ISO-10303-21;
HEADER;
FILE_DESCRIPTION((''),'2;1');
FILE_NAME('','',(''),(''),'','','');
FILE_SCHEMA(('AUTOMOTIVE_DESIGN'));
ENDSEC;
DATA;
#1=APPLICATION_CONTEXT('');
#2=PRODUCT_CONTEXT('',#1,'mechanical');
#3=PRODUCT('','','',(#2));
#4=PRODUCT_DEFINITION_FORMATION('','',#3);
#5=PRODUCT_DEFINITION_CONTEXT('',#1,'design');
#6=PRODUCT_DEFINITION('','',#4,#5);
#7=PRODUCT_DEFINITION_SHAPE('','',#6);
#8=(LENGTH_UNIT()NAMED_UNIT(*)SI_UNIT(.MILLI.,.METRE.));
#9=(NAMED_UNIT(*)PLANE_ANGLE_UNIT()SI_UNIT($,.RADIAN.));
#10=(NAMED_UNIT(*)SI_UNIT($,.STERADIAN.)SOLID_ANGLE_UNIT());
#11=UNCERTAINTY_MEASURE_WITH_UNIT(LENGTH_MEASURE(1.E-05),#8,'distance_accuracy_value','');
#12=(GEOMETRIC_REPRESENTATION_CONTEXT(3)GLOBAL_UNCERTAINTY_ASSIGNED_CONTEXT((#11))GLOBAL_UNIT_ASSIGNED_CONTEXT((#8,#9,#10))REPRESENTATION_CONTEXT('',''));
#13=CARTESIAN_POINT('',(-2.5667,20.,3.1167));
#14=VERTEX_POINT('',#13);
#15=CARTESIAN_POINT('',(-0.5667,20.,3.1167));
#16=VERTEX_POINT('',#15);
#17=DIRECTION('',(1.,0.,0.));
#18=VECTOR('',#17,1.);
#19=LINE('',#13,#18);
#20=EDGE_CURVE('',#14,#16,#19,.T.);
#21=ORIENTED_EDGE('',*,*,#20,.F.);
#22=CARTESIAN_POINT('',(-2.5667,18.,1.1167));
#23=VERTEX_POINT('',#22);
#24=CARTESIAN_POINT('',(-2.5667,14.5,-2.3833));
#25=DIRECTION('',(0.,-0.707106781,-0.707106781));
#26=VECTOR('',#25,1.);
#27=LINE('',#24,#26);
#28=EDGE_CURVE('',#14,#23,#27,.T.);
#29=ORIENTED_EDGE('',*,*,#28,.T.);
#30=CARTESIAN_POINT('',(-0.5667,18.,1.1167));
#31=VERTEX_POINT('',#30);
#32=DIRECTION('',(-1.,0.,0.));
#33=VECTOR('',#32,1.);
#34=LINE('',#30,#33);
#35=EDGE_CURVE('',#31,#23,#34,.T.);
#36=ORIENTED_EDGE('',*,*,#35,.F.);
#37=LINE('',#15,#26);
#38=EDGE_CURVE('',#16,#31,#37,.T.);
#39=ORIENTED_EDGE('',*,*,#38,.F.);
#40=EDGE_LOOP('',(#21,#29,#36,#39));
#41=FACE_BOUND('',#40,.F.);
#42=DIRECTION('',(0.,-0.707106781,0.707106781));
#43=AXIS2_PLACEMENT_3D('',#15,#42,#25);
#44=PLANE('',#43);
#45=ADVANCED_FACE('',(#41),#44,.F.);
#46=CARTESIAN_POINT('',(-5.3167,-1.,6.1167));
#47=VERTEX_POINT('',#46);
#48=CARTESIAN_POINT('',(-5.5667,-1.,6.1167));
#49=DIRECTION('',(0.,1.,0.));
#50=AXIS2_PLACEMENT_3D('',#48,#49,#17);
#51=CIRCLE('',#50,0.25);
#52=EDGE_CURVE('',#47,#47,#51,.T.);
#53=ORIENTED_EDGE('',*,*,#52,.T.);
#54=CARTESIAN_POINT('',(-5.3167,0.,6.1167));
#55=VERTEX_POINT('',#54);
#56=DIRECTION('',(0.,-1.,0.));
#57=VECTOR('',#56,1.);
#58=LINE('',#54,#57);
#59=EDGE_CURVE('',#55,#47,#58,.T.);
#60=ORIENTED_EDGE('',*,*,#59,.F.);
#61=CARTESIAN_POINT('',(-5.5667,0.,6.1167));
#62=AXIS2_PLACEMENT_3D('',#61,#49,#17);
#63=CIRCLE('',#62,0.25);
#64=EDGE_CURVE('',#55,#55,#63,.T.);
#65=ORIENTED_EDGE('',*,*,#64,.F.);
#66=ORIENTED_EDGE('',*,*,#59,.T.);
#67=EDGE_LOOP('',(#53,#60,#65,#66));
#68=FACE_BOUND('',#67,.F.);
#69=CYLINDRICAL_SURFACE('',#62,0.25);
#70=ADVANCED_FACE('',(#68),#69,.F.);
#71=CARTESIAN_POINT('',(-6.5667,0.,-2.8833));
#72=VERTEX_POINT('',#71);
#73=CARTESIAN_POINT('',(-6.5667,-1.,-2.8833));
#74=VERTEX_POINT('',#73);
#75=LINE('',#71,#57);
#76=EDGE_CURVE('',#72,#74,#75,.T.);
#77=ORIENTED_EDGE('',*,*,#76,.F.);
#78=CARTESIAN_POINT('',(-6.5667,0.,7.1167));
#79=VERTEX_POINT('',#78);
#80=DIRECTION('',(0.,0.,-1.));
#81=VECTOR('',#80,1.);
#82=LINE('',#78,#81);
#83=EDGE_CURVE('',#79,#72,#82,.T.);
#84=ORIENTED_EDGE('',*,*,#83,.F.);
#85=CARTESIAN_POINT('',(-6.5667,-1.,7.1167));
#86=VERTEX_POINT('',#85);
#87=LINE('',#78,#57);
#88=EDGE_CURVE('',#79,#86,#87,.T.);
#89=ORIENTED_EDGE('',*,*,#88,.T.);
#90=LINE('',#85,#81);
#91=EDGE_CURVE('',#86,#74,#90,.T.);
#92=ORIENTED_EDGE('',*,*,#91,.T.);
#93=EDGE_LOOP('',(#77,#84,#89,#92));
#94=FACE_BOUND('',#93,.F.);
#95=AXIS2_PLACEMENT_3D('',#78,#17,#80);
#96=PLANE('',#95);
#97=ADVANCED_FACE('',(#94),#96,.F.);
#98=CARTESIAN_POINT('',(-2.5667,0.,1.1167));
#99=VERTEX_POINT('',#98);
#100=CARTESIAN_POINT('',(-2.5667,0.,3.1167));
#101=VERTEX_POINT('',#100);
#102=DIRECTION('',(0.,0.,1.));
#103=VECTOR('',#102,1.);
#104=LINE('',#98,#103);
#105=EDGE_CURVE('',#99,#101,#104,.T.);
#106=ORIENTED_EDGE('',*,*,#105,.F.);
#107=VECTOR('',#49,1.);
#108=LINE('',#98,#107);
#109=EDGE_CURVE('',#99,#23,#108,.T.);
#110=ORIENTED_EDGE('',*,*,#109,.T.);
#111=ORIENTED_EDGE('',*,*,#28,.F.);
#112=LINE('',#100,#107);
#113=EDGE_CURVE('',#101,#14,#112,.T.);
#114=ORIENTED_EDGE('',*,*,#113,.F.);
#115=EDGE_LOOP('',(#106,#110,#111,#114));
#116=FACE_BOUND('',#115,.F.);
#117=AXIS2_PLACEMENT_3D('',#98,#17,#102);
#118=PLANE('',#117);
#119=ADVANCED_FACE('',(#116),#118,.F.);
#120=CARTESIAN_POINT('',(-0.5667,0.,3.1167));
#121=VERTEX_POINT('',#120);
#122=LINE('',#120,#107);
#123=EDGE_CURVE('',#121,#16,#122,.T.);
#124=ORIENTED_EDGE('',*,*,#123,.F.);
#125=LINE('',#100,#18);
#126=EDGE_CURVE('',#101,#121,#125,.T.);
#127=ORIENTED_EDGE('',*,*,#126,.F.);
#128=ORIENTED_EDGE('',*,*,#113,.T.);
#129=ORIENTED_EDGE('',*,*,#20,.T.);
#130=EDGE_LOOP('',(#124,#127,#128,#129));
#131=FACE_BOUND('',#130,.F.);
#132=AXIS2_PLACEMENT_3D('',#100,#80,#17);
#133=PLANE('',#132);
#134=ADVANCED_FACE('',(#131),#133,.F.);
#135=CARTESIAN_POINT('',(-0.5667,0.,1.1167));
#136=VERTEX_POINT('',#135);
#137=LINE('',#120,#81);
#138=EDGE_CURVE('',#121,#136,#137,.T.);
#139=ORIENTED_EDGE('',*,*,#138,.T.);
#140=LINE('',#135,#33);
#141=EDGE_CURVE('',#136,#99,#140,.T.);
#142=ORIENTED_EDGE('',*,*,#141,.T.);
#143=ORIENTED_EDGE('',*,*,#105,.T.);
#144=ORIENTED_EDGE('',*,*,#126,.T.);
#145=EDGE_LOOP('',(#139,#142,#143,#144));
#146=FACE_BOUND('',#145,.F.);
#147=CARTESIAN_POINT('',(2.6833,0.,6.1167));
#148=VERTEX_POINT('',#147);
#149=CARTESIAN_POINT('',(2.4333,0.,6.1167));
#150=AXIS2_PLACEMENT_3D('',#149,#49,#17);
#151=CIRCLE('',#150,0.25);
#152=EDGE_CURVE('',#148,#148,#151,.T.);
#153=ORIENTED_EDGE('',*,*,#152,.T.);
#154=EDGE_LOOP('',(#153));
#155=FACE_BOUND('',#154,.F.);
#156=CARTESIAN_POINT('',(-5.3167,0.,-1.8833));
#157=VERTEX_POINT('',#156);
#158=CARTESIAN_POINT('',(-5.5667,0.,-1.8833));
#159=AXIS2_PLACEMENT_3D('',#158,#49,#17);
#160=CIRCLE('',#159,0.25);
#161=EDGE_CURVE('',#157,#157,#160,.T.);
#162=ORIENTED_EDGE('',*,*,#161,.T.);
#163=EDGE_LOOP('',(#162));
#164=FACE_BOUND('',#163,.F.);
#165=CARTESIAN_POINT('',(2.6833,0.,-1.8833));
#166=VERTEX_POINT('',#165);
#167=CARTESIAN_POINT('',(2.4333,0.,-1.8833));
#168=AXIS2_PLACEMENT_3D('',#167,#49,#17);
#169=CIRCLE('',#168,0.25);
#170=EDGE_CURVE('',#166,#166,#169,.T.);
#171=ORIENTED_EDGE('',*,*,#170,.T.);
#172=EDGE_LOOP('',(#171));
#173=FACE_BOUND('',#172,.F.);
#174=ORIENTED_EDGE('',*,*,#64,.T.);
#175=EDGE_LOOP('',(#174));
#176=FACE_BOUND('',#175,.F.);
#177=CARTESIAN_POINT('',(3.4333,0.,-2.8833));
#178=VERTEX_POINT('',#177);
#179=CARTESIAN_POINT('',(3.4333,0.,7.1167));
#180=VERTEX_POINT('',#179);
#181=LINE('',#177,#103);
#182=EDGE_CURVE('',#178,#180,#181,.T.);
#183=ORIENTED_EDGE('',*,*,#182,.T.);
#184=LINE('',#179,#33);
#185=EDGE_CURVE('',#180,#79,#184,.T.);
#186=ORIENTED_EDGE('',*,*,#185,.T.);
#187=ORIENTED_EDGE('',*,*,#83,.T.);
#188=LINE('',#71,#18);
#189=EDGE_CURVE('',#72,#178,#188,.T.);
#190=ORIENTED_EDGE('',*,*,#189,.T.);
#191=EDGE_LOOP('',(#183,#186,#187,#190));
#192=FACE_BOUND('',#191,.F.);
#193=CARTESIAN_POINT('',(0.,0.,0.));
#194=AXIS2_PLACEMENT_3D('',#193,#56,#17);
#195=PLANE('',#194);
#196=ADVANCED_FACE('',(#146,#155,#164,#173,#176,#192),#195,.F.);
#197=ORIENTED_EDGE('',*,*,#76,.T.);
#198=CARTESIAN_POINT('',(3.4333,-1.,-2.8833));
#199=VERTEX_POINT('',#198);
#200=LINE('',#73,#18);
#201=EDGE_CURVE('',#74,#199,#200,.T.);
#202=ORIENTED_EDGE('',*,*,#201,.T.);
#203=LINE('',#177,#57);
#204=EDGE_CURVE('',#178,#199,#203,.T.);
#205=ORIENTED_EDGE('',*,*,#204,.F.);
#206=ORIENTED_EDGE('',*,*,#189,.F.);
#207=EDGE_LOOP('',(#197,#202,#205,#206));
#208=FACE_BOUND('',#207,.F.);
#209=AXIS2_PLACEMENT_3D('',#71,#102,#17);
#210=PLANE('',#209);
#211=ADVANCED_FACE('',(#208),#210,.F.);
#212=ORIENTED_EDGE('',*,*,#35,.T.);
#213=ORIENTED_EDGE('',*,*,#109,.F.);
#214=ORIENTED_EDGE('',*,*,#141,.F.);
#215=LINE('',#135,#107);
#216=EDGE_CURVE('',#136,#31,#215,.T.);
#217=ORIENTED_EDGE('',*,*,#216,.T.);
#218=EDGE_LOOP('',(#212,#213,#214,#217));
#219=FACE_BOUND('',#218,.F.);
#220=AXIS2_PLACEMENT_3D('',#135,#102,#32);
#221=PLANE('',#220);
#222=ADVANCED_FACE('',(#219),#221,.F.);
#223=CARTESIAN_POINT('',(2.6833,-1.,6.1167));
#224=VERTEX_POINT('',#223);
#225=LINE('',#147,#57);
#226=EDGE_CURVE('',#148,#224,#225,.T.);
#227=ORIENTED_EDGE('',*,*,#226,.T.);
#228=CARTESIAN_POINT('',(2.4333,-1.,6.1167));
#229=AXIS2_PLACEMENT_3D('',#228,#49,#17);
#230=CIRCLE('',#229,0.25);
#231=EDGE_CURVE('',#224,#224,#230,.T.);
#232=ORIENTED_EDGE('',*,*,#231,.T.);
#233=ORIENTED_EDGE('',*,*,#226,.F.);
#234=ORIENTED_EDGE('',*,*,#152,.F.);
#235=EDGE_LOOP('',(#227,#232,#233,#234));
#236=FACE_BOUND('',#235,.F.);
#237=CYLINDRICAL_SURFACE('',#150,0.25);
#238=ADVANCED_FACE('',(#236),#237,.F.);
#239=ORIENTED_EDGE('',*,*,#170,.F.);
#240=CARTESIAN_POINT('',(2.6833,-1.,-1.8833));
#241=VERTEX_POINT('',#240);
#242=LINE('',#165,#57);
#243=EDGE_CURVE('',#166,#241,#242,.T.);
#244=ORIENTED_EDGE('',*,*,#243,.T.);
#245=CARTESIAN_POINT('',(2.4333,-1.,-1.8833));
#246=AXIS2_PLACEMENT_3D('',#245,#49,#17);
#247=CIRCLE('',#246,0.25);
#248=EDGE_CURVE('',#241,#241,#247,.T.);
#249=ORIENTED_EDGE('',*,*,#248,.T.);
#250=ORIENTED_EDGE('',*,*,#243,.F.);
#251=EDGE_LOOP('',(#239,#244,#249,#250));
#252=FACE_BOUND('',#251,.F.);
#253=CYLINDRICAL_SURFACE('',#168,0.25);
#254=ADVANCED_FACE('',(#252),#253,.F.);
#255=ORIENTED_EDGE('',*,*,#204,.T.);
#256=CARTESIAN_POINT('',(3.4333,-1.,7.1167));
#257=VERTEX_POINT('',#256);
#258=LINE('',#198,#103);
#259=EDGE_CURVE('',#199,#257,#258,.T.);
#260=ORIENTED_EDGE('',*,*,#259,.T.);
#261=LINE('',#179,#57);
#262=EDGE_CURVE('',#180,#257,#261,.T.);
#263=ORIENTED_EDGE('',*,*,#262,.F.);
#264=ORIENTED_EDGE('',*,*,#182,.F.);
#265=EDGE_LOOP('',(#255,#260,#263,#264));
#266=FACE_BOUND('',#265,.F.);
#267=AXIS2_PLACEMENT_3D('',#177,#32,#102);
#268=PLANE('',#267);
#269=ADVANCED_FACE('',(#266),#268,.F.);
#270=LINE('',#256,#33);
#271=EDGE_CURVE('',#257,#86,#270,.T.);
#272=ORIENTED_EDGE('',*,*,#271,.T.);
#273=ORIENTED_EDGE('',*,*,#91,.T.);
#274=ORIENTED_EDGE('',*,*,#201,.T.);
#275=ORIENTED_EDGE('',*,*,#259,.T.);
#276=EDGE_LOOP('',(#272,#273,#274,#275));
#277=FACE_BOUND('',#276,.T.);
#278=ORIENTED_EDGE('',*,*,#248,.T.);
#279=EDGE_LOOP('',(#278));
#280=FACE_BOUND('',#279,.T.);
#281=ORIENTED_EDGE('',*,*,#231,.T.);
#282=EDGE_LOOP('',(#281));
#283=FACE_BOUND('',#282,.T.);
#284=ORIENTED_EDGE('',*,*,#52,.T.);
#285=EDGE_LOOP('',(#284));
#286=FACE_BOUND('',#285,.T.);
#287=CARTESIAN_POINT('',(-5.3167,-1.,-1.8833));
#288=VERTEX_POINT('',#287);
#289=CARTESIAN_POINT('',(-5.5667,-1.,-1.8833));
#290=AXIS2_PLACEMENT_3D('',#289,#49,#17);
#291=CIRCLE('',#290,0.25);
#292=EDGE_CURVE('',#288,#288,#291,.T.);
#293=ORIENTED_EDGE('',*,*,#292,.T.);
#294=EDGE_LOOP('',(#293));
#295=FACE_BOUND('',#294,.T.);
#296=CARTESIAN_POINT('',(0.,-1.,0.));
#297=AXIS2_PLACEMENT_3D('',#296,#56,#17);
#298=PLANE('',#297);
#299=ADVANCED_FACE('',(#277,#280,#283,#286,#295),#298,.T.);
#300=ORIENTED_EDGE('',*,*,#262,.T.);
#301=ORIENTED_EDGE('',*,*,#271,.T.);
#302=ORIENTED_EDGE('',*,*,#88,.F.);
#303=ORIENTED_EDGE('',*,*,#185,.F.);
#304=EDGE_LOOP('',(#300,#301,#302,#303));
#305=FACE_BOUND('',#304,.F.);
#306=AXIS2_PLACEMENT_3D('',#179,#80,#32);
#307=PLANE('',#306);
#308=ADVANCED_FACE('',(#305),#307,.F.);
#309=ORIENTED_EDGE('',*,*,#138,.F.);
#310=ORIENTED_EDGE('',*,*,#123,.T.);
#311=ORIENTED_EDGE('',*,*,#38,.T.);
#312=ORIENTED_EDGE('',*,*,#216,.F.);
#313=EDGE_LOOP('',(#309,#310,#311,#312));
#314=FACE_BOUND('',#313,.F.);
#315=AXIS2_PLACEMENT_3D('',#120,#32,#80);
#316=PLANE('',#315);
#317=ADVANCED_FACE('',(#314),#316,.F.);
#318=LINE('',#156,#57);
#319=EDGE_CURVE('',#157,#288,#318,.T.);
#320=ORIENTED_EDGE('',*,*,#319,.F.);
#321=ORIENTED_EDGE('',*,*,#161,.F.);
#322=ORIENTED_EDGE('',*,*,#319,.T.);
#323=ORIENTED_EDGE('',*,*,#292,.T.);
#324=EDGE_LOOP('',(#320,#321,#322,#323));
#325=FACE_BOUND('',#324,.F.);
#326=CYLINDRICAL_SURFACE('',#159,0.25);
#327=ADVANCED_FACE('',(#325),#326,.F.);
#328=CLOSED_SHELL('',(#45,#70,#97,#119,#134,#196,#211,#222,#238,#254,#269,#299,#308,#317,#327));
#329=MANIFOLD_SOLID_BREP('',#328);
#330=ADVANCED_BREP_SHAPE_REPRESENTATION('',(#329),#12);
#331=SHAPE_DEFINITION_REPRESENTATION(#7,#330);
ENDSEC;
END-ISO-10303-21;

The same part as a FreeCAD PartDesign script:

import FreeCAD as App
import Part
import Sketcher

V = App.Vector
Q = App.Units.Quantity

doc = App.newDocument("Part")
body = doc.addObject("PartDesign::Body", "Body")

# Sketch on XZ plane
sketch1 = body.newObject("Sketcher::SketchObject", "Sketch")
sketch1.AttachmentSupport = (doc.getObject("XZ_Plane"), [""])
sketch1.MapMode = "FlatFace"
sketch1.addGeometry(Part.LineSegment(V(-2.6, 1.1, 0), V(-2.6, 3.1, 0)), False)
sketch1.addGeometry(Part.LineSegment(V(-2.6, 3.1, 0), V(-0.6, 3.1, 0)), False)
sketch1.addGeometry(Part.LineSegment(V(-0.6, 3.1, 0), V(-0.6, 1.1, 0)), False)
sketch1.addGeometry(Part.LineSegment(V(-0.6, 1.1, 0), V(-2.6, 1.1, 0)), False)
sketch1.addConstraint(Sketcher.Constraint("Coincident", 0, 2, 1, 1))
sketch1.addConstraint(Sketcher.Constraint("Coincident", 1, 2, 2, 1))
sketch1.addConstraint(Sketcher.Constraint("Coincident", 2, 2, 3, 1))
sketch1.addConstraint(Sketcher.Constraint("Coincident", 3, 2, 0, 1))
sketch1.addConstraint(Sketcher.Constraint("Vertical", 0))
sketch1.addConstraint(Sketcher.Constraint("Horizontal", 1))
sketch1.addConstraint(Sketcher.Constraint("Vertical", 2))
sketch1.addConstraint(Sketcher.Constraint("Horizontal", 3))
sketch1.addConstraint(Sketcher.Constraint("Equal", 3, 0))
sketch1.addConstraint(Sketcher.Constraint("DistanceX", 1, 1, 1, 2, Q("2 mm")))
sketch1.addConstraint(Sketcher.Constraint("DistanceX", 0, 2, -1, 1, Q("2.5667 mm")))
sketch1.addConstraint(Sketcher.Constraint("DistanceY", -1, 1, 0, 2, Q("3.1167 mm")))
pad1 = body.newObject("PartDesign::Pad", "Pad")
pad1.Profile = sketch1
pad1.Length = 20
pad1.Reversed = True

# Sketch on YZ plane
sketch2 = body.newObject("Sketcher::SketchObject", "Sketch001")
sketch2.AttachmentSupport = (doc.getObject("YZ_Plane"), [""])
sketch2.MapMode = "FlatFace"
sketch2.AttachmentOffset = App.Placement(V(0, 0, -0.5667), App.Rotation())
sketch2.addGeometry(Part.LineSegment(V(20, 1.1, 0), V(20, 3.1, 0)), False)
sketch2.addGeometry(Part.LineSegment(V(20, 3.1, 0), V(18, 1.1, 0)), False)
sketch2.addGeometry(Part.LineSegment(V(18, 1.1, 0), V(20, 1.1, 0)), False)
sketch2.addConstraint(Sketcher.Constraint("Coincident", 0, 2, 1, 1))
sketch2.addConstraint(Sketcher.Constraint("Coincident", 1, 2, 2, 1))
sketch2.addConstraint(Sketcher.Constraint("Coincident", 2, 2, 0, 1))
sketch2.addConstraint(Sketcher.Constraint("Vertical", 0))
sketch2.addConstraint(Sketcher.Constraint("Horizontal", 2))
sketch2.addConstraint(Sketcher.Constraint("Equal", 2, 0))
sketch2.addConstraint(Sketcher.Constraint("DistanceX", 2, 1, 2, 2, Q("2 mm")))
sketch2.addConstraint(Sketcher.Constraint("DistanceX", -1, 1, 0, 2, Q("20 mm")))
sketch2.addConstraint(Sketcher.Constraint("DistanceY", -1, 1, 0, 2, Q("3.1167 mm")))
pocket1 = body.newObject("PartDesign::Pocket", "Pocket")
pocket1.Profile = sketch2
pocket1.Type = "ThroughAll"

# Sketch on XZ plane
sketch3 = body.newObject("Sketcher::SketchObject", "Sketch002")
sketch3.AttachmentSupport = (doc.getObject("XZ_Plane"), [""])
sketch3.MapMode = "FlatFace"
sketch3.addGeometry(Part.LineSegment(V(3, -3, 0), V(3, 7, 0)), False)
sketch3.addGeometry(Part.LineSegment(V(3, 7, 0), V(-7, 7, 0)), False)
sketch3.addGeometry(Part.LineSegment(V(-7, 7, 0), V(-7, -3, 0)), False)
sketch3.addGeometry(Part.LineSegment(V(-7, -3, 0), V(3, -3, 0)), False)
sketch3.addConstraint(Sketcher.Constraint("Coincident", 0, 2, 1, 1))
sketch3.addConstraint(Sketcher.Constraint("Coincident", 1, 2, 2, 1))
sketch3.addConstraint(Sketcher.Constraint("Coincident", 2, 2, 3, 1))
sketch3.addConstraint(Sketcher.Constraint("Coincident", 3, 2, 0, 1))
sketch3.addConstraint(Sketcher.Constraint("Vertical", 0))
sketch3.addConstraint(Sketcher.Constraint("Horizontal", 1))
sketch3.addConstraint(Sketcher.Constraint("Vertical", 2))
sketch3.addConstraint(Sketcher.Constraint("Horizontal", 3))
sketch3.addConstraint(Sketcher.Constraint("Equal", 3, 0))
sketch3.addConstraint(Sketcher.Constraint("DistanceX", 1, 2, 1, 1, Q("10 mm")))
sketch3.addConstraint(Sketcher.Constraint("DistanceX", -1, 1, 0, 2, Q("3.4333 mm")))
sketch3.addConstraint(Sketcher.Constraint("DistanceY", -1, 1, 0, 2, Q("7.1167 mm")))
pad2 = body.newObject("PartDesign::Pad", "Pad001")
pad2.Profile = sketch3
pad2.Length = 1

# Sketch on XZ plane
sketch4 = body.newObject("Sketcher::SketchObject", "Sketch003")
sketch4.AttachmentSupport = (doc.getObject("XZ_Plane"), [""])
sketch4.MapMode = "FlatFace"
sketch4.addGeometry(Part.Circle(V(-5.57, -1.88, 0), V(0, 0, 1), 0.25), False)
sketch4.addGeometry(Part.Circle(V(-5.57, 6.12, 0), V(0, 0, 1), 0.25), False)
sketch4.addGeometry(Part.Circle(V(2.43, -1.88, 0), V(0, 0, 1), 0.25), False)
sketch4.addGeometry(Part.Circle(V(2.43, 6.12, 0), V(0, 0, 1), 0.25), False)
sketch4.addConstraint(Sketcher.Constraint("Equal", 0, 1))
sketch4.addConstraint(Sketcher.Constraint("Equal", 1, 2))
sketch4.addConstraint(Sketcher.Constraint("Equal", 2, 3))
sketch4.addConstraint(Sketcher.Constraint("Horizontal", 0, 3, 2, 3))
sketch4.addConstraint(Sketcher.Constraint("Horizontal", 1, 3, 3, 3))
sketch4.addConstraint(Sketcher.Constraint("Vertical", 0, 3, 1, 3))
sketch4.addConstraint(Sketcher.Constraint("Vertical", 2, 3, 3, 3))
sketch4.addConstraint(Sketcher.Constraint("Diameter", 0, Q("0.5 mm")))
sketch4.addConstraint(Sketcher.Constraint("DistanceY", 0, 3, 1, 3, Q("8 mm")))
sketch4.addConstraint(Sketcher.Constraint("DistanceX", 0, 3, 2, 3, Q("8 mm")))
sketch4.addConstraint(Sketcher.Constraint("DistanceX", 0, 3, -1, 1, Q("5.5667 mm")))
sketch4.addConstraint(Sketcher.Constraint("DistanceY", 0, 3, -1, 1, Q("1.8833 mm")))
pocket2 = body.newObject("PartDesign::Pocket", "Pocket001")
pocket2.Profile = sketch4
pocket2.Type = "ThroughAll"
pocket2.Reversed = True

doc.recompute()
